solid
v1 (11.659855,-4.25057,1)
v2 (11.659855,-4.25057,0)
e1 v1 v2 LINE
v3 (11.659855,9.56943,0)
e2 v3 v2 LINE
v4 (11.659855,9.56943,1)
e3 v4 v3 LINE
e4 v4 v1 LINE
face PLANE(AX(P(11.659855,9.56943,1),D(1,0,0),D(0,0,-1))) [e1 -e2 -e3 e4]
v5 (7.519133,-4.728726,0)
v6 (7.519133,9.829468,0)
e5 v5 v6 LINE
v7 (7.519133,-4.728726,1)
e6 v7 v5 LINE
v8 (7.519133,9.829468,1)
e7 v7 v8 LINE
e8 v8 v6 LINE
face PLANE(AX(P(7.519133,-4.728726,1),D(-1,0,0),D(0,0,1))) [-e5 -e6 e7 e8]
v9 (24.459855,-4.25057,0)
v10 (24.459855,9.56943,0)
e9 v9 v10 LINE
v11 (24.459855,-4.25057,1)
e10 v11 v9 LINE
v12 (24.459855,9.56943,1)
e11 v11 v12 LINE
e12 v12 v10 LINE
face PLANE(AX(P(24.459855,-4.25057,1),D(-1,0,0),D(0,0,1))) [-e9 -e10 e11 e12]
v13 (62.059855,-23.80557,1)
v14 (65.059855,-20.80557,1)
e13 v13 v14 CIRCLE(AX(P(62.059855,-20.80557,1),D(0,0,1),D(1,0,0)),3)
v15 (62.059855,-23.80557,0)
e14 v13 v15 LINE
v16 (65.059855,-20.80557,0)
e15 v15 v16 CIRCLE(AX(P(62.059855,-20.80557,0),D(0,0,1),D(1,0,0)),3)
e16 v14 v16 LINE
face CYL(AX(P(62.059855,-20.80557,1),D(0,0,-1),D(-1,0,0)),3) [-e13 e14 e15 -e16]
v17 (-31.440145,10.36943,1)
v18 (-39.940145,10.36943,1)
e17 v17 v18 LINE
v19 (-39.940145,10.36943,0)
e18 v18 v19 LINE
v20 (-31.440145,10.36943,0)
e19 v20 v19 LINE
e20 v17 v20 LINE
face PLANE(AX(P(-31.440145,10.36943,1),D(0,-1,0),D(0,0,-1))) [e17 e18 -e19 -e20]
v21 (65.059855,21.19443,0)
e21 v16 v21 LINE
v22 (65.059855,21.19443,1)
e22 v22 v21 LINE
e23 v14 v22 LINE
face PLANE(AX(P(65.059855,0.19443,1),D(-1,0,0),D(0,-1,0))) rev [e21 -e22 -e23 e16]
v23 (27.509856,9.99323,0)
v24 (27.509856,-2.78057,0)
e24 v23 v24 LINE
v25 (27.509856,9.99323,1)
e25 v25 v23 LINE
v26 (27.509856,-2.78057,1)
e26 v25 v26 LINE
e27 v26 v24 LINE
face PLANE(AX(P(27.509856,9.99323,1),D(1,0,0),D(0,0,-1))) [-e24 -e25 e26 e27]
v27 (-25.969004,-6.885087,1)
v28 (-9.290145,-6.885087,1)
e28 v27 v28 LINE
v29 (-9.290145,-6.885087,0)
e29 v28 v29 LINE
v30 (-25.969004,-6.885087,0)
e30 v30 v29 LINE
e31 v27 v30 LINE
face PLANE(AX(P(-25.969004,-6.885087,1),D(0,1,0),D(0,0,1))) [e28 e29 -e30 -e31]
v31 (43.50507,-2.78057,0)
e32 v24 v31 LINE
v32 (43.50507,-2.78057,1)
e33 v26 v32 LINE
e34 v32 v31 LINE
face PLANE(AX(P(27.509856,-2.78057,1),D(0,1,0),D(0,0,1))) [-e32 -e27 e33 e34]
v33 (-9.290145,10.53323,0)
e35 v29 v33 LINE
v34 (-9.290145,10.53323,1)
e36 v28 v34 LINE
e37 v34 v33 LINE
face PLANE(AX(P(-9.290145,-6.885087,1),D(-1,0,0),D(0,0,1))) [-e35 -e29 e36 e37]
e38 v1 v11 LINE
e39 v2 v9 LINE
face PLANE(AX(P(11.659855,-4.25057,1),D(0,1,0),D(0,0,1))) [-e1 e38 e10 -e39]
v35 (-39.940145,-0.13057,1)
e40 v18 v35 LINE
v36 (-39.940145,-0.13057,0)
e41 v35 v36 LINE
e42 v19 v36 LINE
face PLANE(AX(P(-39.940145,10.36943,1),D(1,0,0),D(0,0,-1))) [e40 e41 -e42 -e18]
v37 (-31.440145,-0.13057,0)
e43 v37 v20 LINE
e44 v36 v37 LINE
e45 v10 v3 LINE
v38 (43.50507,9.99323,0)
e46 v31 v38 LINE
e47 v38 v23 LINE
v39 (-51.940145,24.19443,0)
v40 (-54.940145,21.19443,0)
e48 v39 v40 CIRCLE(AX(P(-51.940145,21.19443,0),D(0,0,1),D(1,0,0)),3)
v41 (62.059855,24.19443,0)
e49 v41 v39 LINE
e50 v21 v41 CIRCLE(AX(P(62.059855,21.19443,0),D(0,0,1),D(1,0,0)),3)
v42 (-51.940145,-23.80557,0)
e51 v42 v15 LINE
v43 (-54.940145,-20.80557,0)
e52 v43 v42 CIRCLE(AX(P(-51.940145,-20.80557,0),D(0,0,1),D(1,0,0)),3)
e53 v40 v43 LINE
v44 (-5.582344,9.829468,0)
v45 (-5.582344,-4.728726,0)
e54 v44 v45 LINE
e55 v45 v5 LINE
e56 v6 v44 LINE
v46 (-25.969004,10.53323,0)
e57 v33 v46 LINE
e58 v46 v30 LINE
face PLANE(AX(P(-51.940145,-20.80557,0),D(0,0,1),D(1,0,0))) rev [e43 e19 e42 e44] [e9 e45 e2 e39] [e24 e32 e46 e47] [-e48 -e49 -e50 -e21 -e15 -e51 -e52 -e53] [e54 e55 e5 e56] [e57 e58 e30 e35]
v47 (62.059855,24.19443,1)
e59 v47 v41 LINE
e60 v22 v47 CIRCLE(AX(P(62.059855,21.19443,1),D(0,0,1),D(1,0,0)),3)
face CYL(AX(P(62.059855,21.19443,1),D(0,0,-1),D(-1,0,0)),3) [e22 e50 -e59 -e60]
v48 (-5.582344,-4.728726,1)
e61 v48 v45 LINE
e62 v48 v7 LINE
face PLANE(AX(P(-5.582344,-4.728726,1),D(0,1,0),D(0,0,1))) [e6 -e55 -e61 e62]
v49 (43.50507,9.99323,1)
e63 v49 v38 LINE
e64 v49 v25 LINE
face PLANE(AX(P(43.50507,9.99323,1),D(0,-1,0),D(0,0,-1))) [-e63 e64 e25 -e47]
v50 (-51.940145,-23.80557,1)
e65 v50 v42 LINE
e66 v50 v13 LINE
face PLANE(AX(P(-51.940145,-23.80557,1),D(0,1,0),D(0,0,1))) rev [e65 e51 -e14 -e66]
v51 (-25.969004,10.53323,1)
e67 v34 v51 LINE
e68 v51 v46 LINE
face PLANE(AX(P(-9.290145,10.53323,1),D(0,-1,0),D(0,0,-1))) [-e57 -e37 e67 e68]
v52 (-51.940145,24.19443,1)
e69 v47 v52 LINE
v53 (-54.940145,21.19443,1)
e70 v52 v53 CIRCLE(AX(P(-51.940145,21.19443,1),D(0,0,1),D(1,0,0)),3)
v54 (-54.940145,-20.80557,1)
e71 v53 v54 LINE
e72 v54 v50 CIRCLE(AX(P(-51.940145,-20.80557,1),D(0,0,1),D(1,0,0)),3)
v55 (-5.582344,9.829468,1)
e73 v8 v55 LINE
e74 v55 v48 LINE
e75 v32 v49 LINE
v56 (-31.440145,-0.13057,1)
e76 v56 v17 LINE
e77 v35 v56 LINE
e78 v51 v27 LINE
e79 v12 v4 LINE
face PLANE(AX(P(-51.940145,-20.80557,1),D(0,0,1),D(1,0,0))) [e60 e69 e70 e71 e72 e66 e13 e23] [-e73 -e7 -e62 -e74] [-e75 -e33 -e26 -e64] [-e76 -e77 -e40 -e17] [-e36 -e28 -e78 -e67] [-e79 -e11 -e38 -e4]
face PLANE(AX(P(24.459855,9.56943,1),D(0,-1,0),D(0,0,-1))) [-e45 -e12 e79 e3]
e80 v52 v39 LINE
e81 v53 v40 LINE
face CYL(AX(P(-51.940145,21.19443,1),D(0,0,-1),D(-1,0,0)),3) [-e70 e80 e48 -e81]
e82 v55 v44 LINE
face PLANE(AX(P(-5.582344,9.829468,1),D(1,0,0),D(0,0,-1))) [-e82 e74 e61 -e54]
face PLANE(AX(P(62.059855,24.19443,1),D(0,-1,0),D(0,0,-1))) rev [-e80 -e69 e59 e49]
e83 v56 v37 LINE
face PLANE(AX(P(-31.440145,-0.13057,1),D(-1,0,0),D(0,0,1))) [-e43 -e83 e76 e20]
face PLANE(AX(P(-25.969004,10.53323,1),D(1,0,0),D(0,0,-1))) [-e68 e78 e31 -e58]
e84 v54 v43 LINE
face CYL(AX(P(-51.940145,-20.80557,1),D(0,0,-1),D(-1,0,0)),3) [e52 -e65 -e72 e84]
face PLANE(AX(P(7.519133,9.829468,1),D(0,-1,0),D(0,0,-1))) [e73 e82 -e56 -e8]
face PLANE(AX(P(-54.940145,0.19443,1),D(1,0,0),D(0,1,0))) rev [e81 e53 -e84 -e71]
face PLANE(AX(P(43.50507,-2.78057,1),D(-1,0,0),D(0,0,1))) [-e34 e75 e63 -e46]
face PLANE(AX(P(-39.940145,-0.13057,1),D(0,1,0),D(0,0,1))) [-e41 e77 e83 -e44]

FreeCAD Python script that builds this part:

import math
import FreeCAD as App
import Part
import Sketcher


def add_polygon(sketch, points):
    """Adds a closed chain of lines whose ends are joined by coincident constraints."""
    first, n = sketch.GeometryCount, len(points)
    for a, b in zip(points, points[1:] + points[:1]):
        sketch.addGeometry(Part.LineSegment(App.Vector(*a, 0), App.Vector(*b, 0)), False)
    for i in range(n):
        sketch.addConstraint(Sketcher.Constraint("Coincident", first + i, 2, first + (i + 1) % n, 1))

doc = App.newDocument("Part")
params = doc.addObject("Spreadsheet::Sheet", "Params")
for row, (alias, value) in enumerate([
    ("sketch1_radius", "3 mm"),
    ("sketch1_width", "114 mm"),
    ("sketch1_height", "42 mm"),
    ("sketch1_width2", "8.5 mm"),
    ("sketch1_width3", "12.8 mm"),
    ("pad1_length", "1 mm"),
], start=1):
    params.set(f"A{row}", alias)
    params.set(f"B{row}", "=" + value)
    params.setAlias(f"B{row}", alias)

body = doc.addObject("PartDesign::Body", "Body")

sketch1 = doc.addObject("Sketcher::SketchObject", "Sketch")
body.addObject(sketch1)
sketch1.AttachmentSupport = (doc.XY_Plane, [""])
sketch1.MapMode = "FlatFace"
sketch1.addGeometry(Part.LineSegment(App.Vector(-51.9, -23.8, 0), App.Vector(62.1, -23.8, 0)), False)
sketch1.addGeometry(Part.ArcOfCircle(Part.Circle(App.Vector(62.1, -20.8, 0), App.Vector(0, 0, 1), 3), math.radians(-90), math.radians(0)), False)
sketch1.addGeometry(Part.LineSegment(App.Vector(65.1, -20.8, 0), App.Vector(65.1, 21.2, 0)), False)
sketch1.addGeometry(Part.ArcOfCircle(Part.Circle(App.Vector(62.1, 21.2, 0), App.Vector(0, 0, 1), 3), math.radians(0), math.radians(90)), False)
sketch1.addGeometry(Part.LineSegment(App.Vector(62.1, 24.2, 0), App.Vector(-51.9, 24.2, 0)), False)
sketch1.addGeometry(Part.ArcOfCircle(Part.Circle(App.Vector(-51.9, 21.2, 0), App.Vector(0, 0, 1), 3), math.radians(90), math.radians(180)), False)
sketch1.addGeometry(Part.LineSegment(App.Vector(-54.9, 21.2, 0), App.Vector(-54.9, -20.8, 0)), False)
sketch1.addGeometry(Part.ArcOfCircle(Part.Circle(App.Vector(-51.9, -20.8, 0), App.Vector(0, 0, 1), 3), math.radians(180), math.radians(270)), False)
add_polygon(sketch1, [(-31.4, -0.1), (-39.9, -0.1), (-39.9, 10.4), (-31.4, 10.4)])
add_polygon(sketch1, [(-9.3, -6.9), (-26, -6.9), (-26, 10.5), (-9.3, 10.5)])
add_polygon(sketch1, [(7.5, -4.7), (-5.6, -4.7), (-5.6, 9.8), (7.5, 9.8)])
add_polygon(sketch1, [(24.5, -4.3), (11.7, -4.3), (11.7, 9.6), (24.5, 9.6)])
add_polygon(sketch1, [(43.5, -2.8), (27.5, -2.8), (27.5, 10), (43.5, 10)])
sketch1.addConstraint([
    Sketcher.Constraint("Tangent", 0, 2, 1, 1),
    Sketcher.Constraint("Tangent", 1, 2, 2, 1),
    Sketcher.Constraint("Tangent", 2, 2, 3, 1),
    Sketcher.Constraint("Tangent", 3, 2, 4, 1),
    Sketcher.Constraint("Tangent", 4, 2, 5, 1),
    Sketcher.Constraint("Tangent", 5, 2, 6, 1),
    Sketcher.Constraint("Tangent", 6, 2, 7, 1),
    Sketcher.Constraint("Tangent", 7, 2, 0, 1),
    Sketcher.Constraint("Horizontal", 0),
    Sketcher.Constraint("Vertical", 2),
    Sketcher.Constraint("Horizontal", 4),
    Sketcher.Constraint("Vertical", 6),
    Sketcher.Constraint("Horizontal", 8),
    Sketcher.Constraint("Vertical", 9),
    Sketcher.Constraint("Horizontal", 10),
    Sketcher.Constraint("Vertical", 11),
    Sketcher.Constraint("Horizontal", 12),
    Sketcher.Constraint("Vertical", 13),
    Sketcher.Constraint("Horizontal", 14),
    Sketcher.Constraint("Vertical", 15),
    Sketcher.Constraint("Horizontal", 16),
    Sketcher.Constraint("Vertical", 17),
    Sketcher.Constraint("Horizontal", 18),
    Sketcher.Constraint("Vertical", 19),
    Sketcher.Constraint("Horizontal", 20),
    Sketcher.Constraint("Vertical", 21),
    Sketcher.Constraint("Horizontal", 22),
    Sketcher.Constraint("Vertical", 23),
    Sketcher.Constraint("Horizontal", 24),
    Sketcher.Constraint("Vertical", 25),
    Sketcher.Constraint("Horizontal", 26),
    Sketcher.Constraint("Vertical", 27),
    Sketcher.Constraint("Equal", 1, 3),
    Sketcher.Constraint("Equal", 3, 5),
    Sketcher.Constraint("Equal", 5, 7),
    Sketcher.Constraint("Radius", 1, 3.0),
    Sketcher.Constraint("DistanceX", 0, 1, 0, 2, 114.0),
    Sketcher.Constraint("DistanceY", 2, 1, 2, 2, 42.0),
    Sketcher.Constraint("DistanceX", 8, 2, 8, 1, 8.5),
    Sketcher.Constraint("DistanceX", 20, 2, 20, 1, 12.8),
    Sketcher.Constraint("DistanceY", 9, 1, 9, 2, 10.5),
    Sketcher.Constraint("DistanceX", 7, 3, 8, 2, 12.0),
    Sketcher.Constraint("DistanceY", 21, 1, 21, 2, 13.82),
    Sketcher.Constraint("DistanceX", 10, 2, 14, 2, 22.15),
    Sketcher.Constraint("DistanceX", 15, 2, 20, 2, 20.95),
    Sketcher.Constraint("DistanceX", 23, 2, 24, 2, 3.05),
    Sketcher.Constraint("DistanceY", 23, 2, 24, 2, 1.47),
    Sketcher.Constraint("DistanceY", 25, 1, 25, 2, 12.7738),
    Sketcher.Constraint("DistanceY", 7, 3, 8, 2, 20.675),
    Sketcher.Constraint("DistanceX", 12, 2, 12, 1, 16.678859),
    Sketcher.Constraint("DistanceY", 10, 2, 13, 2, 0.1638),
    Sketcher.Constraint("DistanceX", 15, 2, 16, 2, 3.7078),
    Sketcher.Constraint("DistanceY", 21, 2, 14, 2, 0.9638),
    Sketcher.Constraint("DistanceX", 16, 2, 16, 1, 13.101478),
    Sketcher.Constraint("DistanceX", 24, 2, 24, 1, 15.995215),
    Sketcher.Constraint("DistanceY", 13, 1, 13, 2, 17.418318),
    Sketcher.Constraint("DistanceY", 17, 1, 17, 2, 14.558195),
    Sketcher.Constraint("DistanceY", 1, 3, -1, 1, 20.80557),
    Sketcher.Constraint("DistanceY", -1, 1, 17, 2, 9.829468),
    Sketcher.Constraint("DistanceX", -1, 1, 26, 2, 43.50507),
])
sketch1.setExpression("Constraints[55]", "Params.sketch1_radius")
sketch1.setExpression("Constraints[56]", "Params.sketch1_width")
sketch1.setExpression("Constraints[57]", "Params.sketch1_height")
sketch1.setExpression("Constraints[58]", "Params.sketch1_width2")
sketch1.setExpression("Constraints[59]", "Params.sketch1_width3")
pad1 = doc.addObject("PartDesign::Pad", "Pad")
body.addObject(pad1)
pad1.Profile = sketch1
pad1.setExpression("Length", "Params.pad1_length")

doc.recompute()
